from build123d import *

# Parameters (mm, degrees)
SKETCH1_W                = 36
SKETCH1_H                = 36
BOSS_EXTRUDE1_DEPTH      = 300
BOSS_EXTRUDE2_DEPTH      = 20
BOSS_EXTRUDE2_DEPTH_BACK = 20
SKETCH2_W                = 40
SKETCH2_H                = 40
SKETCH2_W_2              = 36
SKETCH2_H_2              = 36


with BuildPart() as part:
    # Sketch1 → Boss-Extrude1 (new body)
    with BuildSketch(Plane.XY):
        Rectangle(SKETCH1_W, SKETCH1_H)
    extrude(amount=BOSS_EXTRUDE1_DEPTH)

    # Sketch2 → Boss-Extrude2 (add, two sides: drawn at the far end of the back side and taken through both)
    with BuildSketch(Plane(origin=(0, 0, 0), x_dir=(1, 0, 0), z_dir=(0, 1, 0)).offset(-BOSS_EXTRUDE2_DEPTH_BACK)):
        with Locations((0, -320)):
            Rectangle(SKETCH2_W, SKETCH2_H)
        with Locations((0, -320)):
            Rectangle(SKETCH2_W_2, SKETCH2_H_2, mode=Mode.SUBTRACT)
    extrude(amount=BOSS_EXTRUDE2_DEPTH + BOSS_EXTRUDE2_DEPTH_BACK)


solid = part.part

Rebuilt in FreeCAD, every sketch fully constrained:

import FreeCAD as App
import Part
import Sketcher

V = App.Vector


def add_polygon(sketch, points):
    """Adds a closed chain of lines whose ends are joined by coincident constraints."""
    first, n = sketch.GeometryCount, len(points)
    for a, b in zip(points, points[1:] + points[:1]):
        sketch.addGeometry(Part.LineSegment(App.Vector(*a, 0), App.Vector(*b, 0)), False)
    for i in range(n):
        sketch.addConstraint(Sketcher.Constraint("Coincident", first + i, 2, first + (i + 1) % n, 1))

doc = App.newDocument("Part")
body = doc.addObject("PartDesign::Body", "Body")

# Sketch on XY plane
sketch1 = body.newObject("Sketcher::SketchObject", "Sketch")
sketch1.AttachmentSupport = (doc.getObject("XY_Plane"), [""])
sketch1.MapMode = "FlatFace"
add_polygon(sketch1, [(-18, 18), (-18, -18), (18, -18), (18, 18)])  # lines 0-3
sketch1.addConstraint(Sketcher.Constraint("Vertical", 0))
sketch1.addConstraint(Sketcher.Constraint("Horizontal", 1))
sketch1.addConstraint(Sketcher.Constraint("Vertical", 2))
sketch1.addConstraint(Sketcher.Constraint("Horizontal", 3))
sketch1.addConstraint(Sketcher.Constraint("Symmetric", 0, 2, 2, 2, -1, 1))
sketch1.addConstraint(Sketcher.Constraint("Equal", 3, 0))
sketch1.addConstraint(Sketcher.Constraint("DistanceX", 1, 1, 1, 2, 36.0))
pad1 = body.newObject("PartDesign::Pad", "Pad")
pad1.Profile = sketch1
pad1.Length = 300

# Sketch on XZ plane
sketch2 = body.newObject("Sketcher::SketchObject", "Sketch001")
sketch2.AttachmentSupport = (doc.getObject("XZ_Plane"), [""])
sketch2.MapMode = "FlatFace"
add_polygon(sketch2, [(-20, 300), (-20, 340), (20, 340), (20, 300)])  # lines 0-3
add_polygon(sketch2, [(18, 338), (-18, 338), (-18, 302), (18, 302)])  # lines 4-7
sketch2.addConstraint(Sketcher.Constraint("Vertical", 0))
sketch2.addConstraint(Sketcher.Constraint("Horizontal", 1))
sketch2.addConstraint(Sketcher.Constraint("Vertical", 2))
sketch2.addConstraint(Sketcher.Constraint("Horizontal", 3))
sketch2.addConstraint(Sketcher.Constraint("Horizontal", 4))
sketch2.addConstraint(Sketcher.Constraint("Vertical", 5))
sketch2.addConstraint(Sketcher.Constraint("Horizontal", 6))
sketch2.addConstraint(Sketcher.Constraint("Vertical", 7))
sketch2.addConstraint(Sketcher.Constraint("Equal", 3, 0))
sketch2.addConstraint(Sketcher.Constraint("Equal", 6, 5))
sketch2.addConstraint(Sketcher.Constraint("DistanceX", 1, 1, 1, 2, 40.0))
sketch2.addConstraint(Sketcher.Constraint("DistanceX", 4, 2, 4, 1, 36.0))
sketch2.addConstraint(Sketcher.Constraint("DistanceX", 0, 2, -1, 1, 20.0))
sketch2.addConstraint(Sketcher.Constraint("DistanceY", -1, 1, 0, 2, 340.0))
sketch2.addConstraint(Sketcher.Constraint("DistanceX", 4, 2, -1, 1, 18.0))
sketch2.addConstraint(Sketcher.Constraint("DistanceY", -1, 1, 4, 2, 338.0))
pad2 = body.newObject("PartDesign::Pad", "Pad001")
pad2.Profile = sketch2
pad2.Type = "TwoLengths"
pad2.Length = 20
pad2.Length2 = 20
pad2.Reversed = True

doc.recompute()
